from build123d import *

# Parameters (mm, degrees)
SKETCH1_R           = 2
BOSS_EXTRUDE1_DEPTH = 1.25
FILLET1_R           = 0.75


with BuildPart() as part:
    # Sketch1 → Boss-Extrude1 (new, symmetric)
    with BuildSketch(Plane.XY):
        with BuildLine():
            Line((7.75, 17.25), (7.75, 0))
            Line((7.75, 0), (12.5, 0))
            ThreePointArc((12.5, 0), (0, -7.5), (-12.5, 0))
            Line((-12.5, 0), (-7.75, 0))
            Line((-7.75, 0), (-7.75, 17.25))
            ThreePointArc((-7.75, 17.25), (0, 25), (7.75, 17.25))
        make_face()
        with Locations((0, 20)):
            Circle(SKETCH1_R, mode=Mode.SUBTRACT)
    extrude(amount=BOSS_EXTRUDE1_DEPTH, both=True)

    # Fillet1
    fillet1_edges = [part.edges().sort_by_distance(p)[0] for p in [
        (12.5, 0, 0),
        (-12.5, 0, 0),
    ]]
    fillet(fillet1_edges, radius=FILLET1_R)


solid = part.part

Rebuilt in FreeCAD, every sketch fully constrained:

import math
import FreeCAD as App
import Part
import Sketcher
from FreeCAD import Vector
Q = App.Units.Quantity


def edges_at(feature, points):
    """Names of the edges that pass closest to the given points."""
    edges = feature.Shape.Edges
    near = lambda p: min(range(len(edges)), key=lambda i: edges[i].distToShape(Part.Vertex(*p))[0])
    return sorted({f"Edge{near(p) + 1}" for p in points})

doc = App.newDocument("Part")
body = doc.addObject("PartDesign::Body", "Body")

sketch1 = body.newObject("Sketcher::SketchObject", "Sketch")
sketch1.AttachmentSupport = (doc.getObject("XY_Plane"), [""])
sketch1.MapMode = "FlatFace"
sketch1.addGeometry(Part.LineSegment(Vector(7.8, 0, 0), Vector(7.8, 17.2, 0)), False)
sketch1.addGeometry(Part.ArcOfCircle(Part.Circle(Vector(0, 17.2, 0), Vector(0, 0, 1), 7.8), math.radians(0), math.radians(180)), False)
sketch1.addGeometry(Part.LineSegment(Vector(-7.8, 17.2, 0), Vector(-7.8, 0, 0)), False)
sketch1.addGeometry(Part.LineSegment(Vector(-7.8, 0, 0), Vector(-12.5, 0, 0)), False)
sketch1.addGeometry(Part.ArcOfCircle(Part.Circle(Vector(0, 6.7, 0), Vector(0, 0, 1), 14.2), math.radians(-152), math.radians(-28)), False)
sketch1.addGeometry(Part.LineSegment(Vector(12.5, 0, 0), Vector(7.8, 0, 0)), False)
sketch1.addGeometry(Part.Circle(Vector(0, 20, 0), Vector(0, 0, 1), 2), False)
sketch1.addConstraint(Sketcher.Constraint("Tangent", 0, 2, 1, 1))
sketch1.addConstraint(Sketcher.Constraint("Tangent", 1, 2, 2, 1))
sketch1.addConstraint(Sketcher.Constraint("Coincident", 2, 2, 3, 1))
sketch1.addConstraint(Sketcher.Constraint("Coincident", 3, 2, 4, 1))
sketch1.addConstraint(Sketcher.Constraint("Coincident", 4, 2, 5, 1))
sketch1.addConstraint(Sketcher.Constraint("Coincident", 5, 2, 0, 1))
sketch1.addConstraint(Sketcher.Constraint("Vertical", 0))
sketch1.addConstraint(Sketcher.Constraint("Vertical", 2))
sketch1.addConstraint(Sketcher.Constraint("Horizontal", 3))
sketch1.addConstraint(Sketcher.Constraint("Horizontal", 5))
sketch1.addConstraint(Sketcher.Constraint("Symmetric", 3, 2, 4, 2, -1, 1))
sketch1.addConstraint(Sketcher.Constraint("Symmetric", 2, 2, 5, 2, -2))
sketch1.addConstraint(Sketcher.Constraint("PointOnObject", 6, 3, -2))
sketch1.addConstraint(Sketcher.Constraint("Diameter", 6, Q("4 mm")))
sketch1.addConstraint(Sketcher.Constraint("Radius", 1, Q("7.75 mm")))
sketch1.addConstraint(Sketcher.Constraint("DistanceY", -1, 1, 6, 3, Q("20 mm")))
sketch1.addConstraint(Sketcher.Constraint("DistanceX", 3, 2, 3, 1, Q("4.75 mm")))
sketch1.addConstraint(Sketcher.Constraint("DistanceY", 0, 1, 0, 2, Q("17.25 mm")))
sketch1.addConstraint(Sketcher.Constraint("Radius", 4, Q("14.166667 mm")))
pad1 = body.newObject("PartDesign::Pad", "Pad")
pad1.Profile = sketch1
pad1.Length = 2.5
pad1.Midplane = True
doc.recompute()

fillet = body.newObject("PartDesign::Fillet", "Fillet")
fillet.Base = (pad1, edges_at(pad1, [(12.5, 0, 0), (-12.5, 0, 0)]))
fillet.Radius = 0.75

doc.recompute()
